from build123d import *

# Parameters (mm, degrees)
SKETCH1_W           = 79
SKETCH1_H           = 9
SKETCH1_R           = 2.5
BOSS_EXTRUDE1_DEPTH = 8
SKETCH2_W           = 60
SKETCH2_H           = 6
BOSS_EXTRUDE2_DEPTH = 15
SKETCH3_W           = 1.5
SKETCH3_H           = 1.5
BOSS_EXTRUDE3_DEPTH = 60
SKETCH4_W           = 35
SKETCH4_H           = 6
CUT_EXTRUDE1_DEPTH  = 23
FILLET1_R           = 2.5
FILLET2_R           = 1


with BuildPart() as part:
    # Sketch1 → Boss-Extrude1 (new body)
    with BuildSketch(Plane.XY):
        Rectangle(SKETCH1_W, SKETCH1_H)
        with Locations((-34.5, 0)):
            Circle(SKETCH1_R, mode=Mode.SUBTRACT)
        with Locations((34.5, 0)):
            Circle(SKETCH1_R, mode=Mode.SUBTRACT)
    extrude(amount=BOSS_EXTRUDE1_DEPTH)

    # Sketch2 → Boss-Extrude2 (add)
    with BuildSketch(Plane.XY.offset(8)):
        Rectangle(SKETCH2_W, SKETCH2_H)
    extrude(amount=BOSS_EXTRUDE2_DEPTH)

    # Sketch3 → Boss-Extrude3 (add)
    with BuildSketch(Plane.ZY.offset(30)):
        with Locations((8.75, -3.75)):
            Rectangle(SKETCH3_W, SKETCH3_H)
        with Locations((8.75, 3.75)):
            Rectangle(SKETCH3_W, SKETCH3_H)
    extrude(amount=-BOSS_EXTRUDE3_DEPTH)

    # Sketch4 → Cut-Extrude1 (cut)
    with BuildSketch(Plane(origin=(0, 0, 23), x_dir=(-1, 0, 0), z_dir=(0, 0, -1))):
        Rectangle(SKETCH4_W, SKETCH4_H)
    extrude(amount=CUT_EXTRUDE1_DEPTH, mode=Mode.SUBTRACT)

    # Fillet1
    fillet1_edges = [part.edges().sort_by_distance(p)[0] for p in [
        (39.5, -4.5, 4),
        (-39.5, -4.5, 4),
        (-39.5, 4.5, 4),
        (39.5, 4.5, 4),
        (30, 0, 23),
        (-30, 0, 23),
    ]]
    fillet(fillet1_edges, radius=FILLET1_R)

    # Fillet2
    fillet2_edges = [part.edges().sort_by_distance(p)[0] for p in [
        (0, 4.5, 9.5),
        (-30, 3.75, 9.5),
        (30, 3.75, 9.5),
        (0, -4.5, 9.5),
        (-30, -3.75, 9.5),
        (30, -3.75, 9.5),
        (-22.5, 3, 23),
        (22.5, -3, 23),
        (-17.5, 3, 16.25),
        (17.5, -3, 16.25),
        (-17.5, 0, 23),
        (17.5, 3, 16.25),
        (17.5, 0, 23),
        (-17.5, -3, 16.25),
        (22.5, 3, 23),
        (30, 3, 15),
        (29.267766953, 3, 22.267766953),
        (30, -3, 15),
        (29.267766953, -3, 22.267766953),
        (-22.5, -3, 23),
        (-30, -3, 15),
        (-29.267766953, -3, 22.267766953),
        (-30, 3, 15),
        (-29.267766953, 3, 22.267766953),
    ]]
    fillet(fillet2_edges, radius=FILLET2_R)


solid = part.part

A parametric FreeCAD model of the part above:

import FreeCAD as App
import Part
import Sketcher

V = App.Vector
Q = App.Units.Quantity


def edges_at(feature, points):
    """Names of the edges that pass closest to the given points."""
    edges = feature.Shape.Edges
    near = lambda p: min(range(len(edges)), key=lambda i: edges[i].distToShape(Part.Vertex(*p))[0])
    return sorted({f"Edge{near(p) + 1}" for p in points})


def add_polygon(sketch, points):
    """Adds a closed chain of lines whose ends are joined by coincident constraints."""
    first, n = sketch.GeometryCount, len(points)
    for a, b in zip(points, points[1:] + points[:1]):
        sketch.addGeometry(Part.LineSegment(App.Vector(*a, 0), App.Vector(*b, 0)), False)
    for i in range(n):
        sketch.addConstraint(Sketcher.Constraint("Coincident", first + i, 2, first + (i + 1) % n, 1))

doc = App.newDocument("Part")
body = doc.addObject("PartDesign::Body", "Body")

sketch1 = doc.addObject("Sketcher::SketchObject", "Sketch")
body.addObject(sketch1)
sketch1.AttachmentSupport = (doc.XY_Plane, [""])
sketch1.MapMode = "FlatFace"
add_polygon(sketch1, [(-39.5, 4.5), (-39.5, -4.5), (39.5, -4.5), (39.5, 4.5)])
sketch1.addGeometry(Part.Circle(V(-34.5, 0, 0), V(0, 0, 1), 2.5), False)
sketch1.addGeometry(Part.Circle(V(34.5, 0, 0), V(0, 0, 1), 2.5), False)
sketch1.addConstraint(Sketcher.Constraint("Vertical", 0))
sketch1.addConstraint(Sketcher.Constraint("Horizontal", 1))
sketch1.addConstraint(Sketcher.Constraint("Vertical", 2))
sketch1.addConstraint(Sketcher.Constraint("Horizontal", 3))
sketch1.addConstraint(Sketcher.Constraint("Equal", 4, 5))
sketch1.addConstraint(Sketcher.Constraint("Symmetric", 4, 3, 5, 3, -1, 1))
sketch1.addConstraint(Sketcher.Constraint("Symmetric", 0, 2, 2, 2, -1, 1))
sketch1.addConstraint(Sketcher.Constraint("PointOnObject", 4, 3, -1))
sketch1.addConstraint(Sketcher.Constraint("Diameter", 4, Q("5 mm")))
sketch1.addConstraint(Sketcher.Constraint("DistanceX", 1, 1, 1, 2, Q("79 mm")))
sketch1.addConstraint(Sketcher.Constraint("DistanceY", 0, 2, 0, 1, Q("9 mm")))
sketch1.addConstraint(Sketcher.Constraint("DistanceX", 4, 3, 5, 3, Q("69 mm")))
pad1 = doc.addObject("PartDesign::Pad", "Pad")
body.addObject(pad1)
pad1.Profile = sketch1
pad1.Length = 8

sketch2 = doc.addObject("Sketcher::SketchObject", "Sketch001")
body.addObject(sketch2)
sketch2.AttachmentSupport = (doc.XY_Plane, [""])
sketch2.MapMode = "FlatFace"
sketch2.AttachmentOffset = App.Placement(V(0, 0, 8), App.Rotation())
add_polygon(sketch2, [(-30, 3), (-30, -3), (30, -3), (30, 3)])
sketch2.addConstraint(Sketcher.Constraint("Vertical", 0))
sketch2.addConstraint(Sketcher.Constraint("Horizontal", 1))
sketch2.addConstraint(Sketcher.Constraint("Vertical", 2))
sketch2.addConstraint(Sketcher.Constraint("Horizontal", 3))
sketch2.addConstraint(Sketcher.Constraint("Symmetric", 0, 2, 2, 2, -1, 1))
sketch2.addConstraint(Sketcher.Constraint("DistanceX", 1, 1, 1, 2, Q("60 mm")))
sketch2.addConstraint(Sketcher.Constraint("DistanceY", 0, 2, 0, 1, Q("6 mm")))
pad2 = doc.addObject("PartDesign::Pad", "Pad001")
body.addObject(pad2)
pad2.Profile = sketch2
pad2.Length = 15

sketch3 = doc.addObject("Sketcher::SketchObject", "Sketch002")
body.addObject(sketch3)
sketch3.AttachmentSupport = (doc.YZ_Plane, [""])
sketch3.MapMode = "FlatFace"
sketch3.AttachmentOffset = App.Placement(V(0, 0, -30), App.Rotation())
add_polygon(sketch3, [(-3, 8), (-4.5, 8), (-4.5, 9.5), (-3, 9.5)])
add_polygon(sketch3, [(4.5, 8), (3, 8), (3, 9.5), (4.5, 9.5)])
sketch3.addConstraint(Sketcher.Constraint("Horizontal", 0))
sketch3.addConstraint(Sketcher.Constraint("Vertical", 1))
sketch3.addConstraint(Sketcher.Constraint("Horizontal", 2))
sketch3.addConstraint(Sketcher.Constraint("Vertical", 3))
sketch3.addConstraint(Sketcher.Constraint("Horizontal", 4))
sketch3.addConstraint(Sketcher.Constraint("Vertical", 5))
sketch3.addConstraint(Sketcher.Constraint("Horizontal", 6))
sketch3.addConstraint(Sketcher.Constraint("Vertical", 7))
sketch3.addConstraint(Sketcher.Constraint("Symmetric", 3, 2, 4, 2, -2))
sketch3.addConstraint(Sketcher.Constraint("Symmetric", 1, 2, 6, 2, -2))
sketch3.addConstraint(Sketcher.Constraint("Equal", 6, 1))
sketch3.addConstraint(Sketcher.Constraint("DistanceX", 0, 2, 0, 1, Q("1.5 mm")))
sketch3.addConstraint(Sketcher.Constraint("DistanceY", -1, 1, 0, 2, Q("8 mm")))
sketch3.addConstraint(Sketcher.Constraint("DistanceX", 2, 2, -1, 1, Q("3 mm")))
pad3 = doc.addObject("PartDesign::Pad", "Pad002")
body.addObject(pad3)
pad3.Profile = sketch3
pad3.Length = 60

sketch4 = doc.addObject("Sketcher::SketchObject", "Sketch003")
body.addObject(sketch4)
sketch4.AttachmentSupport = (doc.XY_Plane, [""])
sketch4.MapMode = "FlatFace"
sketch4.AttachmentOffset = App.Placement(V(0, 0, 23), App.Rotation())
add_polygon(sketch4, [(17.5, 3), (17.5, -3), (-17.5, -3), (-17.5, 3)])
sketch4.addConstraint(Sketcher.Constraint("Vertical", 0))
sketch4.addConstraint(Sketcher.Constraint("Horizontal", 1))
sketch4.addConstraint(Sketcher.Constraint("Vertical", 2))
sketch4.addConstraint(Sketcher.Constraint("Horizontal", 3))
sketch4.addConstraint(Sketcher.Constraint("Symmetric", 0, 2, 2, 2, -1, 1))
sketch4.addConstraint(Sketcher.Constraint("DistanceX", 1, 2, 1, 1, Q("35 mm")))
sketch4.addConstraint(Sketcher.Constraint("DistanceY", 0, 2, 0, 1, Q("6 mm")))
pocket1 = doc.addObject("PartDesign::Pocket", "Pocket")
body.addObject(pocket1)
pocket1.Profile = sketch4
pocket1.Length = 23
doc.recompute()

fillet = doc.addObject("PartDesign::Fillet", "Fillet")
body.addObject(fillet)
fillet.Base = (pocket1, edges_at(pocket1, [
    (39.5, -4.5, 4),
    (-39.5, -4.5, 4),
    (-39.5, 4.5, 4),
    (39.5, 4.5, 4),
    (30, 0, 23),
    (-30, 0, 23),
]))
fillet.Radius = 2.5
doc.recompute()

fillet2 = doc.addObject("PartDesign::Fillet", "Fillet001")
body.addObject(fillet2)
fillet2.Base = (fillet, edges_at(fillet, [
    (0, 4.5, 9.5),
    (-30, 3.75, 9.5),
    (30, 3.75, 9.5),
    (0, -4.5, 9.5),
    (-30, -3.75, 9.5),
    (30, -3.75, 9.5),
    (-22.5, 3, 23),
    (22.5, -3, 23),
    (-17.5, 3, 16.25),
    (17.5, -3, 16.25),
    (-17.5, 0, 23),
    (17.5, 3, 16.25),
    (17.5, 0, 23),
    (-17.5, -3, 16.25),
    (22.5, 3, 23),
    (30, 3, 15),
    (29.268, 3, 22.268),
    (30, -3, 15),
    (29.268, -3, 22.268),
    (-22.5, -3, 23),
    (-30, -3, 15),
    (-29.268, -3, 22.268),
    (-30, 3, 15),
    (-29.268, 3, 22.268),
]))
fillet2.Radius = 1

doc.recompute()
